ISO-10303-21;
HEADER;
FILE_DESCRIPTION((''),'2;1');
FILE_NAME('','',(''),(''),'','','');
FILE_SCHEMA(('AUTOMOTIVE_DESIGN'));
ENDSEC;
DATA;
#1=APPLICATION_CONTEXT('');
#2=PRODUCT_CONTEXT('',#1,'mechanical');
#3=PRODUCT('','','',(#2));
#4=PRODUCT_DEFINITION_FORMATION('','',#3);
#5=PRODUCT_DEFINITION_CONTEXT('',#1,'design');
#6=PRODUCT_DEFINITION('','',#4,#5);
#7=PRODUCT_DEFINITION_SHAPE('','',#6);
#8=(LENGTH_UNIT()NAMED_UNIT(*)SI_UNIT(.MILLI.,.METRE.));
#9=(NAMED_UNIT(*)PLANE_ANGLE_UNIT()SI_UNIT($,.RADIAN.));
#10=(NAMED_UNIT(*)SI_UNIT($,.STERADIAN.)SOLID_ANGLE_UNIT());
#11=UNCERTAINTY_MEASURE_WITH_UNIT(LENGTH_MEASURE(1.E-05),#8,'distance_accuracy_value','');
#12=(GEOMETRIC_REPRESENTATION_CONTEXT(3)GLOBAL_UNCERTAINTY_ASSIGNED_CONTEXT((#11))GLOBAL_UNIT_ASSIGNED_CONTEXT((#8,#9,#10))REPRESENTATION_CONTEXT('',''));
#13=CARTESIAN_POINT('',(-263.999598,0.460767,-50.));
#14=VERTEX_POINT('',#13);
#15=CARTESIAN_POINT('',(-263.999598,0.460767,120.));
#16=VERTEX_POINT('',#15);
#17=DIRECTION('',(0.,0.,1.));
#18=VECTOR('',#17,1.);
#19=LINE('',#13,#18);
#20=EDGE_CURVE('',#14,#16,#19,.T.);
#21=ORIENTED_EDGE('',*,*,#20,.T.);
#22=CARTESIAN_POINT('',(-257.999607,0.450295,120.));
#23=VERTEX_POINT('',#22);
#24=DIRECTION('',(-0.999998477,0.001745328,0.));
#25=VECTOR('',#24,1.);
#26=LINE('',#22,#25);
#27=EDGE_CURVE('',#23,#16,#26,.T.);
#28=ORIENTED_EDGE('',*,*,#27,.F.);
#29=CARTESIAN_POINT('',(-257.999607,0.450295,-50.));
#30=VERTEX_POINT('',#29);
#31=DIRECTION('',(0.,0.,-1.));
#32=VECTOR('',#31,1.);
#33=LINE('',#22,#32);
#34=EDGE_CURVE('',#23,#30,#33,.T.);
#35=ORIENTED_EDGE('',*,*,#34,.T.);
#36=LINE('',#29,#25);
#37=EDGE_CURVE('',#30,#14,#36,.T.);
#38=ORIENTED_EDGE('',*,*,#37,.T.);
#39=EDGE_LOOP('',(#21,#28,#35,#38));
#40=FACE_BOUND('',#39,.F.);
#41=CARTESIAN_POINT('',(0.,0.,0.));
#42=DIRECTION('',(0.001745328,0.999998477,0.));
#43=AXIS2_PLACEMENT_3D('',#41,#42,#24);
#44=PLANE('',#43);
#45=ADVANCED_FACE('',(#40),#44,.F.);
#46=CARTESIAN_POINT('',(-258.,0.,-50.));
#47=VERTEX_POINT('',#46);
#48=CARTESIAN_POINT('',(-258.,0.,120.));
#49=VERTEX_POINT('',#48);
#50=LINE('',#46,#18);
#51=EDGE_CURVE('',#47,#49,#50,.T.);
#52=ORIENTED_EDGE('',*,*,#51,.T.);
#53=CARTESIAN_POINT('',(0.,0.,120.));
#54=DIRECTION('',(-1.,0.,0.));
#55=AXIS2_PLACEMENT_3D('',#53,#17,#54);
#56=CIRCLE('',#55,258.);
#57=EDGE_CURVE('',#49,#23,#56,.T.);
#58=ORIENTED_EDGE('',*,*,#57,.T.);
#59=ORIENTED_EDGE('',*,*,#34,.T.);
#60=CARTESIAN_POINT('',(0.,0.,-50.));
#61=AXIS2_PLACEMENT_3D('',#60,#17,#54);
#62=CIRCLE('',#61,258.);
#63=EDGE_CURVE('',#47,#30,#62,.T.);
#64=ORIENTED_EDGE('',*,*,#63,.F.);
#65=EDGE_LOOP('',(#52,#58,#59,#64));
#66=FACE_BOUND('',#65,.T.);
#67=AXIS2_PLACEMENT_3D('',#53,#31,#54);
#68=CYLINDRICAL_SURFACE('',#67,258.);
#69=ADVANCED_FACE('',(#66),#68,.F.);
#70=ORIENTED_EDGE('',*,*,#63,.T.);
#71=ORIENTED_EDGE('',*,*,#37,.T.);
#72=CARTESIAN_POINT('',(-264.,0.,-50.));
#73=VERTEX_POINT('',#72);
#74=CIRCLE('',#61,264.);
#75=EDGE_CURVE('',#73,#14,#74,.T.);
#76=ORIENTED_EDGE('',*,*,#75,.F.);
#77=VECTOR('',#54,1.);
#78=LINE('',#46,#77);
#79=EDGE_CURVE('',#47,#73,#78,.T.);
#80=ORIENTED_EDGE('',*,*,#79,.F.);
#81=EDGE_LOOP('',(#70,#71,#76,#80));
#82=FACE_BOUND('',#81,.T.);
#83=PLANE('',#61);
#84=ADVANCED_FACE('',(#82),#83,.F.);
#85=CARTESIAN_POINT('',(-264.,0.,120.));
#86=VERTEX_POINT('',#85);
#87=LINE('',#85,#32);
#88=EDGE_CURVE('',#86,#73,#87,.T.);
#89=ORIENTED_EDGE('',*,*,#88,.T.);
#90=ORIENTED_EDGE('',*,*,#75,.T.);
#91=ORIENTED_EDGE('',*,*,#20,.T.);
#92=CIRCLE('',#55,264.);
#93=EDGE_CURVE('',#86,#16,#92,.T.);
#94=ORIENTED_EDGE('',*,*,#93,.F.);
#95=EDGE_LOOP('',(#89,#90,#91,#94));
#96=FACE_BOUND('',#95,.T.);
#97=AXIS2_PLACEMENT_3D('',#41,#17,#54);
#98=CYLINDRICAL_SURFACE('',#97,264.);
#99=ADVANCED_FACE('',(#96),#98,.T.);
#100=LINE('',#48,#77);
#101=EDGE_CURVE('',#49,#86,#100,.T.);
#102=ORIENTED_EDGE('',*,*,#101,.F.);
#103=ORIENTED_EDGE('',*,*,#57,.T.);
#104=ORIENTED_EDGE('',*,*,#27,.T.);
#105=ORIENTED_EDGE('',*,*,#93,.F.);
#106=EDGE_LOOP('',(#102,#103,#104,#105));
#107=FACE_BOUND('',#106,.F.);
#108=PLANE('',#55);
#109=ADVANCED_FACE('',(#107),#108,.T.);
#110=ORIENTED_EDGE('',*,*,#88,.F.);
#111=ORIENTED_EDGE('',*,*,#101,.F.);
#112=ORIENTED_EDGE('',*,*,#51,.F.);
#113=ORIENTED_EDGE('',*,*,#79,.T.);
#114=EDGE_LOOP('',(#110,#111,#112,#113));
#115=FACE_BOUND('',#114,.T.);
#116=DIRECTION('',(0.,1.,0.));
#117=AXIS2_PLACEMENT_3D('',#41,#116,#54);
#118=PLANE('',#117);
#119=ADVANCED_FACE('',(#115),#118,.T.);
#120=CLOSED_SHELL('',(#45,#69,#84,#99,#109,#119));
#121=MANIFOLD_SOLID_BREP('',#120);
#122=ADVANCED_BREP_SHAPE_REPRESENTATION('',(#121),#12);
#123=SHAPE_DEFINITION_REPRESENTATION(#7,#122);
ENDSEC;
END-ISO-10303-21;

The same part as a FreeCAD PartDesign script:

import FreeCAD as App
import Part
import Sketcher

V = App.Vector

doc = App.newDocument("Part")
body = doc.addObject("PartDesign::Body", "Body")

# Sketch on XZ plane
sketch1 = doc.addObject("Sketcher::SketchObject", "Sketch")
body.addObject(sketch1)
sketch1.AttachmentSupport = (doc.XZ_Plane, [""])
sketch1.MapMode = "FlatFace"
sketch1.addGeometry([
    Part.LineSegment(V(-264, 120, 0), V(-258, 120, 0)),
    Part.LineSegment(V(-258, 120, 0), V(-258, -50, 0)),
    Part.LineSegment(V(-258, -50, 0), V(-264, -50, 0)),
    Part.LineSegment(V(-264, -50, 0), V(-264, 120, 0)),
], False)
sketch1.addConstraint([
    Sketcher.Constraint("Coincident", 0, 2, 1, 1),
    Sketcher.Constraint("Coincident", 1, 2, 2, 1),
    Sketcher.Constraint("Coincident", 2, 2, 3, 1),
    Sketcher.Constraint("Coincident", 3, 2, 0, 1),
    Sketcher.Constraint("Horizontal", 0),
    Sketcher.Constraint("Vertical", 1),
    Sketcher.Constraint("Horizontal", 2),
    Sketcher.Constraint("Vertical", 3),
    Sketcher.Constraint("DistanceX", 0, 1, 0, 2, 6.0),
    Sketcher.Constraint("DistanceY", -1, 1, 0, 2, 120.0),
    Sketcher.Constraint("DistanceY", 1, 2, -1, 1, 50.0),
    Sketcher.Constraint("DistanceX", 0, 2, -1, 1, 258.0),
])
revolution = doc.addObject("PartDesign::Revolution", "Revolution")
body.addObject(revolution)
revolution.Profile = sketch1
revolution.ReferenceAxis = (sketch1, ["V_Axis"])
revolution.Angle = 359.9

doc.recompute()
